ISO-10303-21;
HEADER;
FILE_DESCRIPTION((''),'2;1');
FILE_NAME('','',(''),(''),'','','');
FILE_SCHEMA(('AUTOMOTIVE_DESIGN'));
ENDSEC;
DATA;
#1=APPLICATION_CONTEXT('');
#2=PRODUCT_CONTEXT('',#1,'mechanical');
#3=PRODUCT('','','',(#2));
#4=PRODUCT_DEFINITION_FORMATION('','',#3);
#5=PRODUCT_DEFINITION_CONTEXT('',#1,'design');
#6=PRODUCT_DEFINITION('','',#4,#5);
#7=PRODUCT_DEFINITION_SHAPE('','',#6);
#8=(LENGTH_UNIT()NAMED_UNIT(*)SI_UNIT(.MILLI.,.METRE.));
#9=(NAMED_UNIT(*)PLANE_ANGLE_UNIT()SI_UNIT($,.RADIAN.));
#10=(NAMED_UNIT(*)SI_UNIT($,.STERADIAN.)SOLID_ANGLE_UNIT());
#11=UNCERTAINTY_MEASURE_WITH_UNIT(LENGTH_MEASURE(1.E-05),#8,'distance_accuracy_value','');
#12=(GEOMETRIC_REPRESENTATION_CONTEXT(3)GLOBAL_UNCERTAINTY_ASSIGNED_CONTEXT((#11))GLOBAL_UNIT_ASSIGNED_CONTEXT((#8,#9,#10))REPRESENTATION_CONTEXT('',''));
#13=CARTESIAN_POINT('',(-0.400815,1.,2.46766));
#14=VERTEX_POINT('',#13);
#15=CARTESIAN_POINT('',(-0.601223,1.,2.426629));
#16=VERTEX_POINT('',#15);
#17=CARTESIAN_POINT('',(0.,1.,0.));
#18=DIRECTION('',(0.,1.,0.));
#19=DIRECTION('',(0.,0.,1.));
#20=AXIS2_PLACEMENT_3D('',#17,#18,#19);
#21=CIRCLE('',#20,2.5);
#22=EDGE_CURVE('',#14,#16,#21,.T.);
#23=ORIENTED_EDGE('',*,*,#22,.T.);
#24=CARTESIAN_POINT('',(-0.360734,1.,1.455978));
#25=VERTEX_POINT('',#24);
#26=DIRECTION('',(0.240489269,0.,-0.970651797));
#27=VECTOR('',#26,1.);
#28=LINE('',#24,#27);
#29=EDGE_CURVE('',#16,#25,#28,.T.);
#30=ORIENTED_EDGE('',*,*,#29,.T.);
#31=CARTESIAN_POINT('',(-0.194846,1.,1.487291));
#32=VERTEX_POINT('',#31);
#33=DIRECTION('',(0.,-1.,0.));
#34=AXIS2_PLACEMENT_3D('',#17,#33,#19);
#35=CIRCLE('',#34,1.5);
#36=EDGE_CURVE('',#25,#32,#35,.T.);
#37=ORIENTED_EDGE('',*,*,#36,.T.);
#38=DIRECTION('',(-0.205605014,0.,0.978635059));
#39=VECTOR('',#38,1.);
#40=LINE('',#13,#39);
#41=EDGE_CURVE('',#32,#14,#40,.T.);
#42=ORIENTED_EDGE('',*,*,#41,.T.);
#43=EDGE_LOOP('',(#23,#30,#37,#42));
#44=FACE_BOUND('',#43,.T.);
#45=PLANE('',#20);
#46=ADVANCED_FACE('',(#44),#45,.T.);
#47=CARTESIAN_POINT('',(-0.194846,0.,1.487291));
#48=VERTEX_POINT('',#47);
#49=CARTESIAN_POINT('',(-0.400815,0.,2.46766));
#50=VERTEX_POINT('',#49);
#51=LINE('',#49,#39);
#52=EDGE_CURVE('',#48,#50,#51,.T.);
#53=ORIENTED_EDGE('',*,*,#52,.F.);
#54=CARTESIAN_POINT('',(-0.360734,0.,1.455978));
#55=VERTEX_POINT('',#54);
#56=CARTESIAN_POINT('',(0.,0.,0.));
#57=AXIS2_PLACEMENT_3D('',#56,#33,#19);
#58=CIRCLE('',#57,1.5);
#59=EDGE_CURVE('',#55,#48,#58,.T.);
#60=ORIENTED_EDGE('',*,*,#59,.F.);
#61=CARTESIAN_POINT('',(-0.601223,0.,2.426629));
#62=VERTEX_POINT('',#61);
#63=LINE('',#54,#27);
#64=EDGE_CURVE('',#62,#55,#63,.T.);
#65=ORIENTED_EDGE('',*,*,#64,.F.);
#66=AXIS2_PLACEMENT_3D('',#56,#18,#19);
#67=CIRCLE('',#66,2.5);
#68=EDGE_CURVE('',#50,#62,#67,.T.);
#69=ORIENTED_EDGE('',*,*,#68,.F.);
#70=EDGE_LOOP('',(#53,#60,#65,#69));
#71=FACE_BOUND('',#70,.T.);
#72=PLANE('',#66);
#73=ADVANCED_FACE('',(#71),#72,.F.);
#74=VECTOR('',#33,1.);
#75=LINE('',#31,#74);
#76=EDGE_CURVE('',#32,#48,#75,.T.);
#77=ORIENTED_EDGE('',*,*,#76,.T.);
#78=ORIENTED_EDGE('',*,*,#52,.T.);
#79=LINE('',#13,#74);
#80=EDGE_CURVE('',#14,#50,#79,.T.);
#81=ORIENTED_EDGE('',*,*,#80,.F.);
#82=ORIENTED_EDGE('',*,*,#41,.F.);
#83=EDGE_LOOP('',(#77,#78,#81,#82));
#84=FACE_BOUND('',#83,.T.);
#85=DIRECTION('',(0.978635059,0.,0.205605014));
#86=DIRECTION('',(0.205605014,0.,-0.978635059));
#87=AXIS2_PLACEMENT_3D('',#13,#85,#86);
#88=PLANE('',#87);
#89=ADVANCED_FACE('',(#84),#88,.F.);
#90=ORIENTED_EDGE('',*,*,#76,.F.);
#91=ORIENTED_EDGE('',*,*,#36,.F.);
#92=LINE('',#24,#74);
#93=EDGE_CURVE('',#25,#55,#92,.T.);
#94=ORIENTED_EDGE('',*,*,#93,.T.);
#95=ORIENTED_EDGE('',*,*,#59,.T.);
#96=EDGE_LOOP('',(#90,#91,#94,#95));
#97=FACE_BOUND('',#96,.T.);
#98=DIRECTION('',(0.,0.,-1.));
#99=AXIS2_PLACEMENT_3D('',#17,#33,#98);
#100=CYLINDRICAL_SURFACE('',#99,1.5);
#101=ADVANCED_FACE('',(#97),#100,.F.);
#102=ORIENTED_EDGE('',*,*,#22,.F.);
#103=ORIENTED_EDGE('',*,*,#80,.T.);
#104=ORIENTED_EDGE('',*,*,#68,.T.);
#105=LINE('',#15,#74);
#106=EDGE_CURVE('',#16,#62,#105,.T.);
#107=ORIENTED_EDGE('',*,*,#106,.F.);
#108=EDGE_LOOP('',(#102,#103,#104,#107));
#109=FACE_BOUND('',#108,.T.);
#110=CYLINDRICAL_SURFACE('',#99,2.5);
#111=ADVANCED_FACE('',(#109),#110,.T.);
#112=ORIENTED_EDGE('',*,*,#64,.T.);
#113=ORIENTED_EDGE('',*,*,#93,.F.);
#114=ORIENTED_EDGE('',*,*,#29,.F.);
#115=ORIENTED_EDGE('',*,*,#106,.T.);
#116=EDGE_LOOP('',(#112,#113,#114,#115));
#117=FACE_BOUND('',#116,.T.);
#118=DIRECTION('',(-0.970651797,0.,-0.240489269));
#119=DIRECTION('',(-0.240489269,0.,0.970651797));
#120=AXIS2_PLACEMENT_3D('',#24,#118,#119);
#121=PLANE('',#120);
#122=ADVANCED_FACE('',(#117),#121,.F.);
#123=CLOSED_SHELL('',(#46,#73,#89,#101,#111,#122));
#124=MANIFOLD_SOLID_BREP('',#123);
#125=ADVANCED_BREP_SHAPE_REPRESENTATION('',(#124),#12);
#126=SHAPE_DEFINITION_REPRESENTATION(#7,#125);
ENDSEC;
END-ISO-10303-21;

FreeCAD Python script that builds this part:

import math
import FreeCAD as App
import Part
import Sketcher

V = App.Vector
Q = App.Units.Quantity

doc = App.newDocument("Part")
body = doc.addObject("PartDesign::Body", "Body")

# Sketch on XZ plane
sketch1 = body.newObject("Sketcher::SketchObject", "Sketch")
sketch1.AttachmentSupport = (doc.getObject("XZ_Plane"), [""])
sketch1.MapMode = "FlatFace"
sketch1.addGeometry(Part.LineSegment(V(-0.601223, 2.426629, 0), V(-0.360734, 1.455978, 0)), False)
sketch1.addGeometry(Part.ArcOfCircle(Part.Circle(V(0, 0, 0), V(0, 0, 1), 1.5), math.radians(103.915419), math.radians(457.463665)), False)
sketch1.addGeometry(Part.LineSegment(V(-0.194846, 1.487291, 0), V(-0.400815, 2.46766, 0)), False)
sketch1.addGeometry(Part.ArcOfCircle(Part.Circle(V(0, 0, 0), V(0, 0, 1), 2.5), math.radians(103.915419), math.radians(459.225829)), False)
sketch1.addConstraint(Sketcher.Constraint("Coincident", 0, 2, 1, 1))
sketch1.addConstraint(Sketcher.Constraint("Coincident", 1, 2, 2, 1))
sketch1.addConstraint(Sketcher.Constraint("Coincident", 2, 2, 3, 2))
sketch1.addConstraint(Sketcher.Constraint("Coincident", 3, 1, 0, 1))
sketch1.addConstraint(Sketcher.Constraint("Coincident", 1, 3, -1, 1))
sketch1.addConstraint(Sketcher.Constraint("Coincident", 3, 3, -1, 1))
sketch1.addConstraint(Sketcher.Constraint("Radius", 1, Q("1.5 mm")))
sketch1.addConstraint(Sketcher.Constraint("Radius", 3, Q("2.5 mm")))
sketch1.addConstraint(Sketcher.Constraint("Distance", 2, Q("1.001772 mm")))
sketch1.addConstraint(Sketcher.Constraint("DistanceY", -1, 1, 1, 2, Q("1.487291 mm")))
sketch1.addConstraint(Sketcher.Constraint("DistanceY", -1, 1, 3, 1, Q("2.426629 mm")))
sketch1.addConstraint(Sketcher.Constraint("DistanceX", 2, 2, 0, 2, Q("0.040082 mm")))
pad1 = body.newObject("PartDesign::Pad", "Pad")
pad1.Profile = sketch1
pad1.Length = 1
pad1.Reversed = True

doc.recompute()
